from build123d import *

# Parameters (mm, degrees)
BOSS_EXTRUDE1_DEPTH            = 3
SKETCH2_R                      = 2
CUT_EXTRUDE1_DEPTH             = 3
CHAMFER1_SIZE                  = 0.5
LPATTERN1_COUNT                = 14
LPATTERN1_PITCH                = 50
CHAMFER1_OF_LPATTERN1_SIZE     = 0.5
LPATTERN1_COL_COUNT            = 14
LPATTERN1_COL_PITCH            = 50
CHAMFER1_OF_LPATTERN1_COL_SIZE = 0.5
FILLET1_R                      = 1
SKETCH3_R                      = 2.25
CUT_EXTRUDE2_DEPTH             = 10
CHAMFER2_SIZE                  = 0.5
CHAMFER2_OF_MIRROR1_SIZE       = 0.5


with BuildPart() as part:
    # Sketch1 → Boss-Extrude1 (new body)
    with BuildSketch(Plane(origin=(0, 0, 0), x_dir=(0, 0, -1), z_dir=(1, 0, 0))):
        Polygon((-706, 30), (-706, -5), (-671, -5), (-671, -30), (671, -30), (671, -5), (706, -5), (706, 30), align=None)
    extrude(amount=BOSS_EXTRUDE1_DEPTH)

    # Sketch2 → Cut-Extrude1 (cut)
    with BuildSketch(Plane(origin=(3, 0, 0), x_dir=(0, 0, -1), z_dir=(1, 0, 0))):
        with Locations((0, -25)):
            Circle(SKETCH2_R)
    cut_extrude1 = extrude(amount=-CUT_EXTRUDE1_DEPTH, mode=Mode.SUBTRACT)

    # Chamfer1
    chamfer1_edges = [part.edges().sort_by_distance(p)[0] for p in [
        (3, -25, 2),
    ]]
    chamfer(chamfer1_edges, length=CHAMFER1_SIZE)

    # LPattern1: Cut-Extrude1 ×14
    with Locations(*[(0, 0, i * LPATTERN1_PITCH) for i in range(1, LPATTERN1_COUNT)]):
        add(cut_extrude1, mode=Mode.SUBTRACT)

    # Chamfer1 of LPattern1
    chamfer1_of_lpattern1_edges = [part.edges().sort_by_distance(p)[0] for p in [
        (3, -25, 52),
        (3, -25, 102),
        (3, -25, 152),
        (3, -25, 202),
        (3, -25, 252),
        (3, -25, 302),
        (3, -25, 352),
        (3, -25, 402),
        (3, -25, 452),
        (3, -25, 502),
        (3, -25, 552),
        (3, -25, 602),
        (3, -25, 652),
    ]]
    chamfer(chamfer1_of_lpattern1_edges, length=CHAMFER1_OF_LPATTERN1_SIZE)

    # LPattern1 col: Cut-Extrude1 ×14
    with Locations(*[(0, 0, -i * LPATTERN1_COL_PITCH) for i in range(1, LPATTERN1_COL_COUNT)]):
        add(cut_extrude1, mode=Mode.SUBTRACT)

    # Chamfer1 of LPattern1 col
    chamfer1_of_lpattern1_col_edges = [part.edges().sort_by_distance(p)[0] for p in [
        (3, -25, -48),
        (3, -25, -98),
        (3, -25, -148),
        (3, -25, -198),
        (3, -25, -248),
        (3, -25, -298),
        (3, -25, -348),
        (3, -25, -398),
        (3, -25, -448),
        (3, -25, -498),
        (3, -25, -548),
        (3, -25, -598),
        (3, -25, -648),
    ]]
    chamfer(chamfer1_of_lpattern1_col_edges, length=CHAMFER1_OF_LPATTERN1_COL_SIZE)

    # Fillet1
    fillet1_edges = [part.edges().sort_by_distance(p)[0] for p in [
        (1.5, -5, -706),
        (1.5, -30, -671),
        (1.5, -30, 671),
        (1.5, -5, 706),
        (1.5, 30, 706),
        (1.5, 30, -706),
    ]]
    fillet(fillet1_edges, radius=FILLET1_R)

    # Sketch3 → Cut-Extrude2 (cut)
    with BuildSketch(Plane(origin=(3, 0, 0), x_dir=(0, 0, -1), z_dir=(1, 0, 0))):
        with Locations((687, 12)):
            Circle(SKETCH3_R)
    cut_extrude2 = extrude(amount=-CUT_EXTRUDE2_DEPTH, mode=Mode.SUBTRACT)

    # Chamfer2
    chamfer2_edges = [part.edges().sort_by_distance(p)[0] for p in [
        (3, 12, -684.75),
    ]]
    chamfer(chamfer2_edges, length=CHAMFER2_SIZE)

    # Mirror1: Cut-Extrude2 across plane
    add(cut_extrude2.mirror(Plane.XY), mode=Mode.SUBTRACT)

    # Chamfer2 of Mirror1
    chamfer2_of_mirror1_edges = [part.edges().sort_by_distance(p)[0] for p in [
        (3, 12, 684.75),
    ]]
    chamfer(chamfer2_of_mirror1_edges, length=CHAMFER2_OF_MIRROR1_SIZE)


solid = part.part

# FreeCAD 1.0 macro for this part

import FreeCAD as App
import Part
import Sketcher

V = App.Vector


def edges_at(feature, points):
    """Names of the edges that pass closest to the given points."""
    edges = feature.Shape.Edges
    near = lambda p: min(range(len(edges)), key=lambda i: edges[i].distToShape(Part.Vertex(*p))[0])
    return sorted({f"Edge{near(p) + 1}" for p in points})

doc = App.newDocument("Part")
body = doc.addObject("PartDesign::Body", "Body")

sketch1 = body.newObject("Sketcher::SketchObject", "Sketch")
sketch1.AttachmentSupport = (doc.getObject("YZ_Plane"), [""])
sketch1.MapMode = "FlatFace"
sketch1.addGeometry([
    Part.LineSegment(V(30, 706, 0), V(-5, 706, 0)),
    Part.LineSegment(V(-5, 706, 0), V(-5, 671, 0)),
    Part.LineSegment(V(-5, 671, 0), V(-30, 671, 0)),
    Part.LineSegment(V(-30, 671, 0), V(-30, -671, 0)),
    Part.LineSegment(V(-30, -671, 0), V(-5, -671, 0)),
    Part.LineSegment(V(-5, -671, 0), V(-5, -706, 0)),
    Part.LineSegment(V(-5, -706, 0), V(30, -706, 0)),
    Part.LineSegment(V(30, -706, 0), V(30, 706, 0)),
], False)
sketch1.addConstraint([
    Sketcher.Constraint("Coincident", 0, 2, 1, 1),
    Sketcher.Constraint("Coincident", 1, 2, 2, 1),
    Sketcher.Constraint("Coincident", 2, 2, 3, 1),
    Sketcher.Constraint("Coincident", 3, 2, 4, 1),
    Sketcher.Constraint("Coincident", 4, 2, 5, 1),
    Sketcher.Constraint("Coincident", 5, 2, 6, 1),
    Sketcher.Constraint("Coincident", 6, 2, 7, 1),
    Sketcher.Constraint("Coincident", 7, 2, 0, 1),
    Sketcher.Constraint("Horizontal", 0),
    Sketcher.Constraint("Vertical", 1),
    Sketcher.Constraint("Horizontal", 2),
    Sketcher.Constraint("Vertical", 3),
    Sketcher.Constraint("Horizontal", 4),
    Sketcher.Constraint("Vertical", 5),
    Sketcher.Constraint("Horizontal", 6),
    Sketcher.Constraint("Vertical", 7),
    Sketcher.Constraint("Symmetric", 1, 2, 4, 2, -1),
    Sketcher.Constraint("Equal", 6, 1),
    Sketcher.Constraint("Equal", 1, 5),
    Sketcher.Constraint("DistanceX", 0, 2, 0, 1, 35.0),
    Sketcher.Constraint("DistanceX", 2, 2, 2, 1, 25.0),
    Sketcher.Constraint("DistanceY", 3, 2, 3, 1, 1342.0),
    Sketcher.Constraint("DistanceX", 0, 2, -1, 1, 5.0),
])
pad1 = body.newObject("PartDesign::Pad", "Pad")
pad1.Profile = sketch1
pad1.Length = 3

sketch2 = body.newObject("Sketcher::SketchObject", "Sketch001")
sketch2.AttachmentSupport = (doc.getObject("YZ_Plane"), [""])
sketch2.MapMode = "FlatFace"
sketch2.AttachmentOffset = App.Placement(V(0, 0, 3), App.Rotation())
sketch2.addGeometry(Part.Circle(V(-25, 0, 0), V(0, 0, 1), 2), False)
sketch2.addConstraint([
    Sketcher.Constraint("PointOnObject", 0, 3, -1),
    Sketcher.Constraint("Diameter", 0, 4.0),
    Sketcher.Constraint("DistanceX", 0, 3, -1, 1, 25.0),
])
pocket1 = body.newObject("PartDesign::Pocket", "Pocket")
pocket1.Profile = sketch2
pocket1.Length = 3
doc.recompute()

chamfer = body.newObject("PartDesign::Chamfer", "Chamfer")
chamfer.Base = (pocket1, edges_at(pocket1, [(3, -25, 2)]))
chamfer.Size = 0.5
doc.recompute()

linearpattern = body.newObject("PartDesign::LinearPattern", "LinearPattern")
linearpattern.Originals = [pocket1]
linearpattern.Direction = (doc.getObject("Z_Axis"), [""])
linearpattern.Mode = "offset"
linearpattern.Offset = 50
linearpattern.Occurrences = 14
body.Tip = linearpattern
doc.recompute()

chamfer2 = body.newObject("PartDesign::Chamfer", "Chamfer001")
chamfer2.Base = (linearpattern, edges_at(linearpattern, [
    (3, -25, 52),
    (3, -25, 102),
    (3, -25, 152),
    (3, -25, 202),
    (3, -25, 252),
    (3, -25, 302),
    (3, -25, 352),
    (3, -25, 402),
    (3, -25, 452),
    (3, -25, 502),
    (3, -25, 552),
    (3, -25, 602),
    (3, -25, 652),
]))
chamfer2.Size = 0.5
doc.recompute()

linearpattern2 = body.newObject("PartDesign::LinearPattern", "LinearPattern001")
linearpattern2.Originals = [pocket1]
linearpattern2.Direction = (doc.getObject("Z_Axis"), [""])
linearpattern2.Mode = "offset"
linearpattern2.Offset = 50
linearpattern2.Occurrences = 14
linearpattern2.Reversed = True
body.Tip = linearpattern2
doc.recompute()

chamfer3 = body.newObject("PartDesign::Chamfer", "Chamfer002")
chamfer3.Base = (linearpattern2, edges_at(linearpattern2, [
    (3, -25, -48),
    (3, -25, -98),
    (3, -25, -148),
    (3, -25, -198),
    (3, -25, -248),
    (3, -25, -298),
    (3, -25, -348),
    (3, -25, -398),
    (3, -25, -448),
    (3, -25, -498),
    (3, -25, -548),
    (3, -25, -598),
    (3, -25, -648),
]))
chamfer3.Size = 0.5
doc.recompute()

fillet = body.newObject("PartDesign::Fillet", "Fillet")
fillet.Base = (chamfer3, edges_at(chamfer3, [
    (1.5, -5, -706),
    (1.5, -30, -671),
    (1.5, -30, 671),
    (1.5, -5, 706),
    (1.5, 30, 706),
    (1.5, 30, -706),
]))
fillet.Radius = 1

sketch3 = body.newObject("Sketcher::SketchObject", "Sketch002")
sketch3.AttachmentSupport = (doc.getObject("YZ_Plane"), [""])
sketch3.MapMode = "FlatFace"
sketch3.AttachmentOffset = App.Placement(V(0, 0, 3), App.Rotation())
sketch3.addGeometry(Part.Circle(V(12, -687, 0), V(0, 0, 1), 2.25), False)
sketch3.addConstraint([
    Sketcher.Constraint("Diameter", 0, 4.5),
    Sketcher.Constraint("DistanceX", -1, 1, 0, 3, 12.0),
    Sketcher.Constraint("DistanceY", 0, 3, -1, 1, 687.0),
])
pocket2 = body.newObject("PartDesign::Pocket", "Pocket001")
pocket2.Profile = sketch3
pocket2.Length = 10
doc.recompute()

chamfer4 = body.newObject("PartDesign::Chamfer", "Chamfer003")
chamfer4.Base = (pocket2, edges_at(pocket2, [(3, 12, -684.75)]))
chamfer4.Size = 0.5
doc.recompute()

mirrored = body.newObject("PartDesign::Mirrored", "Mirrored")
mirrored.Originals = [pocket2]
mirrored.MirrorPlane = (doc.getObject("XY_Plane"), [""])
body.Tip = mirrored
doc.recompute()

chamfer5 = body.newObject("PartDesign::Chamfer", "Chamfer004")
chamfer5.Base = (mirrored, edges_at(mirrored, [(3, 12, 684.75)]))
chamfer5.Size = 0.5

doc.recompute()
